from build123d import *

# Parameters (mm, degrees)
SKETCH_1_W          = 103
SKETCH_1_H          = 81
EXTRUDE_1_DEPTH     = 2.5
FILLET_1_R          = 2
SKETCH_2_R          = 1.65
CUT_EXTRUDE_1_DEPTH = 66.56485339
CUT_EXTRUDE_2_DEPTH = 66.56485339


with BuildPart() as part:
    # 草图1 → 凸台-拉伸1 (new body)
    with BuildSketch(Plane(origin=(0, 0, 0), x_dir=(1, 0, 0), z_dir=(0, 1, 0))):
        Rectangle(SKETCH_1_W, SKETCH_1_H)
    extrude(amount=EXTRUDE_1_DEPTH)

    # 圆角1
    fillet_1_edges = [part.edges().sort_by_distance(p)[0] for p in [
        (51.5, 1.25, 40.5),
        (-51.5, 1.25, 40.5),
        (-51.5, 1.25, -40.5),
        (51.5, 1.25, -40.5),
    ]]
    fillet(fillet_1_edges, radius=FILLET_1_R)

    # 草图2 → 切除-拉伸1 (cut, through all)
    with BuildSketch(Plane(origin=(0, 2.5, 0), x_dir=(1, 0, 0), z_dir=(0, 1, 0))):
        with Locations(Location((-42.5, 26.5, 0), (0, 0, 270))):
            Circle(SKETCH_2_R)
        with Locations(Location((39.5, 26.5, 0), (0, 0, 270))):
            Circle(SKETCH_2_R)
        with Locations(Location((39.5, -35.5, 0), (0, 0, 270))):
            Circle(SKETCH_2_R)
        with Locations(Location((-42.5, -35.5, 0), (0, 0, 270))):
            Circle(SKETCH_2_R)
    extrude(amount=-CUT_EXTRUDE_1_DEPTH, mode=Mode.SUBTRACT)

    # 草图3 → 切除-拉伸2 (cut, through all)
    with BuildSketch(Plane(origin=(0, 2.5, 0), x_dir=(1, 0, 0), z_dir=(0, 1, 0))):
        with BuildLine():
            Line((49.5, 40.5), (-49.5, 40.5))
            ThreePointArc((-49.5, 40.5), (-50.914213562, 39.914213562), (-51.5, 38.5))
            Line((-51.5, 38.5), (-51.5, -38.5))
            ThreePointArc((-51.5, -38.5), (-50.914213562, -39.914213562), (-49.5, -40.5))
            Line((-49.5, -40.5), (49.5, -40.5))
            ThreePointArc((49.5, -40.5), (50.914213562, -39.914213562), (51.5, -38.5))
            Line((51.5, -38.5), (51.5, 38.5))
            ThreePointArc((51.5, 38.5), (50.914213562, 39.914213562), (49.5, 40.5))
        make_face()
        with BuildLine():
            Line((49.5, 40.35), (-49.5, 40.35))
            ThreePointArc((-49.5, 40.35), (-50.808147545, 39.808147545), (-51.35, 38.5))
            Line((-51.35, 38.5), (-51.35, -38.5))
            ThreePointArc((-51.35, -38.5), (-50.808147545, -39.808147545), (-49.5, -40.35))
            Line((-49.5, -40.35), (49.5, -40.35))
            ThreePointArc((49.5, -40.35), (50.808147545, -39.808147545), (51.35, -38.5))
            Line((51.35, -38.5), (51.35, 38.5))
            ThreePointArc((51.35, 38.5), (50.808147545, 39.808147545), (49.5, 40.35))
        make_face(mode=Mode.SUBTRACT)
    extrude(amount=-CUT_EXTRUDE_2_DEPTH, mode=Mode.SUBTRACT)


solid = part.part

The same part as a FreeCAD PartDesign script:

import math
import FreeCAD as App
import Part
import Sketcher


def edges_at(feature, points):
    """Names of the edges that pass closest to the given points."""
    edges = feature.Shape.Edges
    near = lambda p: min(range(len(edges)), key=lambda i: edges[i].distToShape(Part.Vertex(*p))[0])
    return sorted({f"Edge{near(p) + 1}" for p in points})

doc = App.newDocument("Part")
params = doc.addObject("Spreadsheet::Sheet", "Params")
for row, (alias, value) in enumerate([
    ("sketch1_width", "103 mm"),
    ("sketch1_height", "81 mm"),
    ("pad1_length", "2.5 mm"),
    ("fillet_radius", "2 mm"),
    ("sketch2_diameter", "3.3 mm"),
    ("sketch3_radius", "2 mm"),
    ("sketch3_width", "99 mm"),
    ("sketch3_height", "77 mm"),
    ("sketch3_radius2", "1.85 mm"),
], start=1):
    params.set(f"A{row}", alias)
    params.set(f"B{row}", "=" + value)
    params.setAlias(f"B{row}", alias)

body = doc.addObject("PartDesign::Body", "Body")

sketch1 = doc.addObject("Sketcher::SketchObject", "Sketch")
body.addObject(sketch1)
sketch1.AttachmentSupport = (doc.XZ_Plane, [""])
sketch1.MapMode = "FlatFace"
sketch1.addGeometry([
    Part.LineSegment(App.Vector(-52, -40, 0), App.Vector(-52, 40, 0)),
    Part.LineSegment(App.Vector(-52, 40, 0), App.Vector(52, 40, 0)),
    Part.LineSegment(App.Vector(52, 40, 0), App.Vector(52, -40, 0)),
    Part.LineSegment(App.Vector(52, -40, 0), App.Vector(-52, -40, 0)),
], False)
sketch1.addConstraint([
    Sketcher.Constraint("Coincident", 0, 2, 1, 1),
    Sketcher.Constraint("Coincident", 1, 2, 2, 1),
    Sketcher.Constraint("Coincident", 2, 2, 3, 1),
    Sketcher.Constraint("Coincident", 3, 2, 0, 1),
    Sketcher.Constraint("Vertical", 0),
    Sketcher.Constraint("Horizontal", 1),
    Sketcher.Constraint("Vertical", 2),
    Sketcher.Constraint("Horizontal", 3),
    Sketcher.Constraint("Symmetric", 0, 2, 2, 2, -1, 1),
    Sketcher.Constraint("DistanceX", 1, 1, 1, 2, 103.0),
    Sketcher.Constraint("DistanceY", 0, 1, 0, 2, 81.0),
])
sketch1.setExpression("Constraints[9]", "Params.sketch1_width")
sketch1.setExpression("Constraints[10]", "Params.sketch1_height")
pad1 = doc.addObject("PartDesign::Pad", "Pad")
body.addObject(pad1)
pad1.Profile = sketch1
pad1.setExpression("Length", "Params.pad1_length")
pad1.Reversed = True
doc.recompute()

fillet = doc.addObject("PartDesign::Fillet", "Fillet")
body.addObject(fillet)
fillet.Base = (pad1, edges_at(pad1, [
    (51.5, 1.25, 40.5),
    (-51.5, 1.25, 40.5),
    (-51.5, 1.25, -40.5),
    (51.5, 1.25, -40.5),
]))
fillet.setExpression("Radius", "Params.fillet_radius")

sketch2 = doc.addObject("Sketcher::SketchObject", "Sketch001")
body.addObject(sketch2)
sketch2.AttachmentSupport = (doc.XZ_Plane, [""])
sketch2.MapMode = "FlatFace"
sketch2.AttachmentOffset = App.Placement(App.Vector(0, 0, -2.5), App.Rotation())
sketch2.addGeometry([
    Part.Circle(App.Vector(-42.5, -26.5, 0), App.Vector(0, 0, 1), 1.6),
    Part.Circle(App.Vector(39.5, -26.5, 0), App.Vector(0, 0, 1), 1.6),
    Part.Circle(App.Vector(39.5, 35.5, 0), App.Vector(0, 0, 1), 1.6),
    Part.Circle(App.Vector(-42.5, 35.5, 0), App.Vector(0, 0, 1), 1.6),
], False)
sketch2.addConstraint([
    Sketcher.Constraint("Equal", 0, 1),
    Sketcher.Constraint("Equal", 1, 2),
    Sketcher.Constraint("Equal", 2, 3),
    Sketcher.Constraint("Horizontal", 0, 3, 1, 3),
    Sketcher.Constraint("Horizontal", 2, 3, 3, 3),
    Sketcher.Constraint("Vertical", 1, 3, 2, 3),
    Sketcher.Constraint("Vertical", 0, 3, 3, 3),
    Sketcher.Constraint("Diameter", 0, 3.3),
    Sketcher.Constraint("DistanceX", 0, 3, 1, 3, 82.0),
    Sketcher.Constraint("DistanceY", 1, 3, 2, 3, 62.0),
    Sketcher.Constraint("DistanceX", 0, 3, -1, 1, 42.5),
    Sketcher.Constraint("DistanceY", 0, 3, -1, 1, 26.5),
])
sketch2.setExpression("Constraints[7]", "Params.sketch2_diameter")
pocket1 = doc.addObject("PartDesign::Pocket", "Pocket")
body.addObject(pocket1)
pocket1.Profile = sketch2
pocket1.Type = "ThroughAll"
pocket1.Reversed = True

sketch3 = doc.addObject("Sketcher::SketchObject", "Sketch002")
body.addObject(sketch3)
sketch3.AttachmentSupport = (doc.XZ_Plane, [""])
sketch3.MapMode = "FlatFace"
sketch3.AttachmentOffset = App.Placement(App.Vector(0, 0, -2.5), App.Rotation())
sketch3.addGeometry([
    Part.LineSegment(App.Vector(49.5, -40.5, 0), App.Vector(-49.5, -40.5, 0)),
    Part.ArcOfCircle(Part.Circle(App.Vector(-49.5, -38.5, 0), App.Vector(0, 0, 1), 2), math.radians(-180), math.radians(-90)),
    Part.LineSegment(App.Vector(-51.5, -38.5, 0), App.Vector(-51.5, 38.5, 0)),
    Part.ArcOfCircle(Part.Circle(App.Vector(-49.5, 38.5, 0), App.Vector(0, 0, 1), 2), math.radians(90), math.radians(180)),
    Part.LineSegment(App.Vector(-49.5, 40.5, 0), App.Vector(49.5, 40.5, 0)),
    Part.ArcOfCircle(Part.Circle(App.Vector(49.5, 38.5, 0), App.Vector(0, 0, 1), 2), math.radians(0), math.radians(90)),
    Part.LineSegment(App.Vector(51.5, 38.5, 0), App.Vector(51.5, -38.5, 0)),
    Part.ArcOfCircle(Part.Circle(App.Vector(49.5, -38.5, 0), App.Vector(0, 0, 1), 2), math.radians(-90), math.radians(0)),
    Part.LineSegment(App.Vector(-49.5, -40.4, 0), App.Vector(49.5, -40.4, 0)),
    Part.ArcOfCircle(Part.Circle(App.Vector(49.5, -38.5, 0), App.Vector(0, 0, 1), 1.9), math.radians(-90), math.radians(0)),
    Part.LineSegment(App.Vector(51.4, -38.5, 0), App.Vector(51.4, 38.5, 0)),
    Part.ArcOfCircle(Part.Circle(App.Vector(49.5, 38.5, 0), App.Vector(0, 0, 1), 1.9), math.radians(0), math.radians(90)),
    Part.LineSegment(App.Vector(49.5, 40.4, 0), App.Vector(-49.5, 40.4, 0)),
    Part.ArcOfCircle(Part.Circle(App.Vector(-49.5, 38.5, 0), App.Vector(0, 0, 1), 1.9), math.radians(90), math.radians(180)),
    Part.LineSegment(App.Vector(-51.4, 38.5, 0), App.Vector(-51.4, -38.5, 0)),
    Part.ArcOfCircle(Part.Circle(App.Vector(-49.5, -38.5, 0), App.Vector(0, 0, 1), 1.9), math.radians(-180), math.radians(-90)),
], False)
sketch3.addConstraint([
    Sketcher.Constraint("Tangent", 0, 2, 1, 2),
    Sketcher.Constraint("Tangent", 1, 1, 2, 1),
    Sketcher.Constraint("Tangent", 2, 2, 3, 2),
    Sketcher.Constraint("Tangent", 3, 1, 4, 1),
    Sketcher.Constraint("Tangent", 4, 2, 5, 2),
    Sketcher.Constraint("Tangent", 5, 1, 6, 1),
    Sketcher.Constraint("Tangent", 6, 2, 7, 2),
    Sketcher.Constraint("Tangent", 7, 1, 0, 1),
    Sketcher.Constraint("Tangent", 8, 2, 9, 1),
    Sketcher.Constraint("Tangent", 9, 2, 10, 1),
    Sketcher.Constraint("Tangent", 10, 2, 11, 1),
    Sketcher.Constraint("Tangent", 11, 2, 12, 1),
    Sketcher.Constraint("Tangent", 12, 2, 13, 1),
    Sketcher.Constraint("Tangent", 13, 2, 14, 1),
    Sketcher.Constraint("Tangent", 14, 2, 15, 1),
    Sketcher.Constraint("Tangent", 15, 2, 8, 1),
    Sketcher.Constraint("Horizontal", 0),
    Sketcher.Constraint("Vertical", 2),
    Sketcher.Constraint("Horizontal", 4),
    Sketcher.Constraint("Vertical", 6),
    Sketcher.Constraint("Horizontal", 8),
    Sketcher.Constraint("Vertical", 10),
    Sketcher.Constraint("Horizontal", 12),
    Sketcher.Constraint("Vertical", 14),
    Sketcher.Constraint("Coincident", 9, 3, 7, 3),
    Sketcher.Constraint("Coincident", 11, 3, 5, 3),
    Sketcher.Constraint("Coincident", 13, 3, 3, 3),
    Sketcher.Constraint("Equal", 1, 3),
    Sketcher.Constraint("Equal", 3, 5),
    Sketcher.Constraint("Equal", 5, 7),
    Sketcher.Constraint("Equal", 13, 15),
    Sketcher.Constraint("Symmetric", 1, 3, 5, 3, -1, 1),
    Sketcher.Constraint("Radius", 1, 2.0),
    Sketcher.Constraint("DistanceX", 0, 2, 0, 1, 99.0),
    Sketcher.Constraint("DistanceY", 2, 1, 2, 2, 77.0),
    Sketcher.Constraint("Radius", 9, 1.85),
])
sketch3.setExpression("Constraints[32]", "Params.sketch3_radius")
sketch3.setExpression("Constraints[33]", "Params.sketch3_width")
sketch3.setExpression("Constraints[34]", "Params.sketch3_height")
sketch3.setExpression("Constraints[35]", "Params.sketch3_radius2")
pocket2 = doc.addObject("PartDesign::Pocket", "Pocket001")
body.addObject(pocket2)
pocket2.Profile = sketch3
pocket2.Type = "ThroughAll"
pocket2.Reversed = True

doc.recompute()
